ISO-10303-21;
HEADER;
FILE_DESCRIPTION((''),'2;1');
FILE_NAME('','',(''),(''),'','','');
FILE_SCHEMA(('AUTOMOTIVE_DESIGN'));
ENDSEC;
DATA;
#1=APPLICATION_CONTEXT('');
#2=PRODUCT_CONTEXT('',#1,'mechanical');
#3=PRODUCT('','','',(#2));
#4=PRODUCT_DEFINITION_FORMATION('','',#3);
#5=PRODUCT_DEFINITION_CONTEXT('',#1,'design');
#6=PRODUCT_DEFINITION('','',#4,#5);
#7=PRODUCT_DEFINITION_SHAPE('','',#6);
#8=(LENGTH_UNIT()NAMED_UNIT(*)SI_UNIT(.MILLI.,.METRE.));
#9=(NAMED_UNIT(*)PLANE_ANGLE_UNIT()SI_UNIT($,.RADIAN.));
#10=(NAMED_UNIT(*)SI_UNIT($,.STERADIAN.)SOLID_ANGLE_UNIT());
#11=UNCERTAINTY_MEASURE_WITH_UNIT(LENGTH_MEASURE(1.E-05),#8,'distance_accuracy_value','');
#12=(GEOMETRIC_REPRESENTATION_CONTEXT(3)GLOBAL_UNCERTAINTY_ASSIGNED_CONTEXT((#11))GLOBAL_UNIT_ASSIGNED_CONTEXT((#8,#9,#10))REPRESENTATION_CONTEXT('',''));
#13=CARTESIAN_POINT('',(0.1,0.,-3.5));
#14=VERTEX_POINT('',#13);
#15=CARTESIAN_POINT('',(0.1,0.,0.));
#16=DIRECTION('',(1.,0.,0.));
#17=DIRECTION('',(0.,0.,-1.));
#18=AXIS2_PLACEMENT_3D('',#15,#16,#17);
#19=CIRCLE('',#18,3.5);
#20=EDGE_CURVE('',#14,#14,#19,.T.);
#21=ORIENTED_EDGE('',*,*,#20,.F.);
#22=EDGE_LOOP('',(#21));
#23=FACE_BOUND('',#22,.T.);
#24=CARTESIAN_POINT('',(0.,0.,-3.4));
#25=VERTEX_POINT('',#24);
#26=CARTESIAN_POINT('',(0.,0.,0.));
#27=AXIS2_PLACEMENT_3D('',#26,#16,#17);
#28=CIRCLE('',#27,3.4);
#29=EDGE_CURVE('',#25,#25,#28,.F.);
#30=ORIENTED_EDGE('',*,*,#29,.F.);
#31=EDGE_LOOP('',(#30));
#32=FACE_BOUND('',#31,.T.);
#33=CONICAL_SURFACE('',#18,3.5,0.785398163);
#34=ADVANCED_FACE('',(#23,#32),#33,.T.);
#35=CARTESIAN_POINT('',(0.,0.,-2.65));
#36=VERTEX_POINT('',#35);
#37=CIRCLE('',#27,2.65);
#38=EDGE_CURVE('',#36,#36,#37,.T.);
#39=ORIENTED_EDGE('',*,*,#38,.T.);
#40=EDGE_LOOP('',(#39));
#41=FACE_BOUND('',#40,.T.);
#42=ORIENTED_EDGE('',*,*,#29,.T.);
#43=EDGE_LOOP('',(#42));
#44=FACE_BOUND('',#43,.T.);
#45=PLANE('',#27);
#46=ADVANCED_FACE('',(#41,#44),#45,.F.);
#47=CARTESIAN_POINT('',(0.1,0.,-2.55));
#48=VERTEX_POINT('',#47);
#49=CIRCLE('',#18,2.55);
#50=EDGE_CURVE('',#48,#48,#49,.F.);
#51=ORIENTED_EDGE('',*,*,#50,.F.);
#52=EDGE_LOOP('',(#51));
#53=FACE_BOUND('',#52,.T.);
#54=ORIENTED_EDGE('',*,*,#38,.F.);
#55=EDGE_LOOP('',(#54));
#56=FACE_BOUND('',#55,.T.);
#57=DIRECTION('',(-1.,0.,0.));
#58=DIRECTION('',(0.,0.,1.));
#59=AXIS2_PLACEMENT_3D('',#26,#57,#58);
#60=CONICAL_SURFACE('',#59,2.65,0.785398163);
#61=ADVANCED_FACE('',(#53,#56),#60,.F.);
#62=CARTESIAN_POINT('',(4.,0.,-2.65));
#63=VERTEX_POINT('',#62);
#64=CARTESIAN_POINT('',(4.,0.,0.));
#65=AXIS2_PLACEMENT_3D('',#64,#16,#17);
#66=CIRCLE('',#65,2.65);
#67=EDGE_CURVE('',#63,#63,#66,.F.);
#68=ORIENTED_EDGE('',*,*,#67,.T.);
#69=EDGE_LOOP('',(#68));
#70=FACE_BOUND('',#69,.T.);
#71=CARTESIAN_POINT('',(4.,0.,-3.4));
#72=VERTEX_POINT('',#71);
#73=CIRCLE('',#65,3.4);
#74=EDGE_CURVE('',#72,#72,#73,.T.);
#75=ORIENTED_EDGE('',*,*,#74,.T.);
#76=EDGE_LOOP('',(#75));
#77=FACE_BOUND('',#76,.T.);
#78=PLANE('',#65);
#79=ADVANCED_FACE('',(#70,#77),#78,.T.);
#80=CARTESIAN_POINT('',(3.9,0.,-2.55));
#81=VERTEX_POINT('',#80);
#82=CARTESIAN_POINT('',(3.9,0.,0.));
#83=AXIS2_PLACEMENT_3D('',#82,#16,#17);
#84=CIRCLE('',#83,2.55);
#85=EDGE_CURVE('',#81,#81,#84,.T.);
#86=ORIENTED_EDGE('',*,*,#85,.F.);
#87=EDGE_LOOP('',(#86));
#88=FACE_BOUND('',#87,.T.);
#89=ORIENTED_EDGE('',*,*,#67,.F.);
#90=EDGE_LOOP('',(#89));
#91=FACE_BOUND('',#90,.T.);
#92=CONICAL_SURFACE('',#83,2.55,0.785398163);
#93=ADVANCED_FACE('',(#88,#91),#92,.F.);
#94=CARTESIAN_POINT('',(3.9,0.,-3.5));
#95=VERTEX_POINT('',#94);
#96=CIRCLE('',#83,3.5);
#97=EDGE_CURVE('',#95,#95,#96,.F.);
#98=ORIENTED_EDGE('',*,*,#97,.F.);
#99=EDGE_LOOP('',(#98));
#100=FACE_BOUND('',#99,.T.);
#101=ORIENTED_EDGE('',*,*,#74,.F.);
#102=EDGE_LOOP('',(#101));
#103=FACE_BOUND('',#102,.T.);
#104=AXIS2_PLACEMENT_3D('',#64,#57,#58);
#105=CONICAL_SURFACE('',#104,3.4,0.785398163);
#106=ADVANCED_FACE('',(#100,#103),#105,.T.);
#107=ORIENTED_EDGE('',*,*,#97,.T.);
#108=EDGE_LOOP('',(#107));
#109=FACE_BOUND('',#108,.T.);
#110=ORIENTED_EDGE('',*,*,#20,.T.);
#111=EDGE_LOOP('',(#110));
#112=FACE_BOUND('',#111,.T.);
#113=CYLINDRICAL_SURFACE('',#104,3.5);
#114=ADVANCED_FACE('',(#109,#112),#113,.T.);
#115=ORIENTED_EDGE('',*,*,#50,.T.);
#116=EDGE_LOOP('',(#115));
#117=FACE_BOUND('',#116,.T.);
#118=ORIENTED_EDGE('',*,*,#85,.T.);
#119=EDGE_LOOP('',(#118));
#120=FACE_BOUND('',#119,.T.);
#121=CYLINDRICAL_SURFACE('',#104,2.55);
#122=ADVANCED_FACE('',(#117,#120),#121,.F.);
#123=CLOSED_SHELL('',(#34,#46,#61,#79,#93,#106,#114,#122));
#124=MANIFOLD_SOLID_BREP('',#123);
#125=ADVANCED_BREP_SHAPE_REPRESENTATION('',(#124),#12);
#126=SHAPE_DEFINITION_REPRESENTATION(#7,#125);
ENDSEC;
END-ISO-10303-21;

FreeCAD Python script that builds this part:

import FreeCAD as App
import Part
import Sketcher
Q = App.Units.Quantity


def edges_at(feature, points):
    """Names of the edges that pass closest to the given points."""
    edges = feature.Shape.Edges
    near = lambda p: min(range(len(edges)), key=lambda i: edges[i].distToShape(Part.Vertex(*p))[0])
    return sorted({f"Edge{near(p) + 1}" for p in points})

doc = App.newDocument("Part")
body = doc.addObject("PartDesign::Body", "Body")

# Sketch on YZ plane
sketch1 = doc.addObject("Sketcher::SketchObject", "Sketch")
body.addObject(sketch1)
sketch1.AttachmentSupport = (doc.YZ_Plane, [""])
sketch1.MapMode = "FlatFace"
sketch1.addGeometry(Part.Circle(App.Vector(0, 0, 0), App.Vector(0, 0, 1), 3.5), False)
sketch1.addGeometry(Part.Circle(App.Vector(0, 0, 0), App.Vector(0, 0, 1), 2.55), False)
sketch1.addConstraint(Sketcher.Constraint("Coincident", 0, 3, -1, 1))
sketch1.addConstraint(Sketcher.Constraint("Coincident", 1, 3, -1, 1))
sketch1.addConstraint(Sketcher.Constraint("Diameter", 0, Q("7 mm")))
sketch1.addConstraint(Sketcher.Constraint("Diameter", 1, Q("5.1 mm")))
pad1 = doc.addObject("PartDesign::Pad", "Pad")
body.addObject(pad1)
pad1.Profile = sketch1
pad1.Length = 4
doc.recompute()

chamfer = doc.addObject("PartDesign::Chamfer", "Chamfer")
body.addObject(chamfer)
chamfer.Base = (pad1, edges_at(pad1, [
    (0, 0, 3.5),
    (4, 0, 3.5),
    (0, 0, 2.55),
    (4, 0, 2.55),
]))
chamfer.Size = 0.1

doc.recompute()
